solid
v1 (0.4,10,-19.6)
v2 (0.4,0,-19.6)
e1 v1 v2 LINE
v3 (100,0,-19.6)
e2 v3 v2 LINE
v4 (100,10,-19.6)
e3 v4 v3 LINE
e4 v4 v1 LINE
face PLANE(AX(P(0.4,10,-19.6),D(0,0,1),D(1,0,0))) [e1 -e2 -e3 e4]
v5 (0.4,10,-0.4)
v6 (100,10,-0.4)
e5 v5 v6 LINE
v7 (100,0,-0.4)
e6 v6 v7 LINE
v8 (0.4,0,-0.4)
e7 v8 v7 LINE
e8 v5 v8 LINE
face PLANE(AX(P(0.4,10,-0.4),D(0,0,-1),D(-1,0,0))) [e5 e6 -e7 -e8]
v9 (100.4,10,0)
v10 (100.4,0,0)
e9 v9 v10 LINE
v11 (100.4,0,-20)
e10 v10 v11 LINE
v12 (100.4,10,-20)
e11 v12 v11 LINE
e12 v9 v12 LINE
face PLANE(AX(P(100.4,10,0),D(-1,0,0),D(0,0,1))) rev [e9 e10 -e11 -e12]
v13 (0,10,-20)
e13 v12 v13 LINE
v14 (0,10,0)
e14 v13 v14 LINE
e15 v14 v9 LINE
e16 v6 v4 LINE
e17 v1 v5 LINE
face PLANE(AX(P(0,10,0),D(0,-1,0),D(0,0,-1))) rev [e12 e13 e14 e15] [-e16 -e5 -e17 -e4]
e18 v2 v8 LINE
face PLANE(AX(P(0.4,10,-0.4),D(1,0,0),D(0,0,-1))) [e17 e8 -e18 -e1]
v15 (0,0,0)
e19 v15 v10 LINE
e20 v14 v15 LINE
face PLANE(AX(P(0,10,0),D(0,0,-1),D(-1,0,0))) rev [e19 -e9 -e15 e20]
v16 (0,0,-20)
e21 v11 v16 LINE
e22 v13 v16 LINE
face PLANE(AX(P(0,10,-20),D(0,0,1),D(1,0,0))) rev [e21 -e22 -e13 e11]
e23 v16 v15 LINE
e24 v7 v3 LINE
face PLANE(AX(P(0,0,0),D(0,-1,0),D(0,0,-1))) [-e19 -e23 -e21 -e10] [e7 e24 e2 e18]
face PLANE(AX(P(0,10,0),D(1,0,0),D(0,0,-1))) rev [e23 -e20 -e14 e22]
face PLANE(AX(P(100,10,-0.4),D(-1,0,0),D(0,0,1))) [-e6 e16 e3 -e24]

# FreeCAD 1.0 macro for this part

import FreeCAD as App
import Part
import Sketcher

doc = App.newDocument("Part")
params = doc.addObject("Spreadsheet::Sheet", "Params")
for row, (alias, value) in enumerate([
    ("sketch1_height", "20 mm"),
    ("sketch1_width", "100.4 mm"),
    ("sketch1_width2", "99.6 mm"),
    ("sketch1_height2", "19.2 mm"),
    ("pad1_length", "10 mm"),
], start=1):
    params.set(f"A{row}", alias)
    params.set(f"B{row}", "=" + value)
    params.setAlias(f"B{row}", alias)

body = doc.addObject("PartDesign::Body", "Body")

# Sketch on XZ plane
sketch1 = body.newObject("Sketcher::SketchObject", "Sketch")
sketch1.AttachmentSupport = (doc.getObject("XZ_Plane"), [""])
sketch1.MapMode = "FlatFace"
sketch1.addGeometry(Part.LineSegment(App.Vector(0, -20, 0), App.Vector(0, 0, 0)), False)
sketch1.addGeometry(Part.LineSegment(App.Vector(0, 0, 0), App.Vector(100, 0, 0)), False)
sketch1.addGeometry(Part.LineSegment(App.Vector(100, 0, 0), App.Vector(100, -20, 0)), False)
sketch1.addGeometry(Part.LineSegment(App.Vector(100, -20, 0), App.Vector(0, -20, 0)), False)
sketch1.addGeometry(Part.LineSegment(App.Vector(100, 0, 0), App.Vector(0, 0, 0)), False)
sketch1.addGeometry(Part.LineSegment(App.Vector(0, 0, 0), App.Vector(0, -20, 0)), False)
sketch1.addGeometry(Part.LineSegment(App.Vector(0, -20, 0), App.Vector(100, -20, 0)), False)
sketch1.addGeometry(Part.LineSegment(App.Vector(100, -20, 0), App.Vector(100, 0, 0)), False)
sketch1.addConstraint(Sketcher.Constraint("Coincident", 0, 2, 1, 1))
sketch1.addConstraint(Sketcher.Constraint("Coincident", 1, 2, 2, 1))
sketch1.addConstraint(Sketcher.Constraint("Coincident", 2, 2, 3, 1))
sketch1.addConstraint(Sketcher.Constraint("Coincident", 3, 2, 0, 1))
sketch1.addConstraint(Sketcher.Constraint("Coincident", 4, 2, 5, 1))
sketch1.addConstraint(Sketcher.Constraint("Coincident", 5, 2, 6, 1))
sketch1.addConstraint(Sketcher.Constraint("Coincident", 6, 2, 7, 1))
sketch1.addConstraint(Sketcher.Constraint("Coincident", 7, 2, 4, 1))
sketch1.addConstraint(Sketcher.Constraint("Vertical", 0))
sketch1.addConstraint(Sketcher.Constraint("Horizontal", 1))
sketch1.addConstraint(Sketcher.Constraint("Vertical", 2))
sketch1.addConstraint(Sketcher.Constraint("Horizontal", 3))
sketch1.addConstraint(Sketcher.Constraint("Horizontal", 4))
sketch1.addConstraint(Sketcher.Constraint("Vertical", 5))
sketch1.addConstraint(Sketcher.Constraint("Horizontal", 6))
sketch1.addConstraint(Sketcher.Constraint("Vertical", 7))
sketch1.addConstraint(Sketcher.Constraint("Coincident", 0, 2, -1, 1))
sketch1.addConstraint(Sketcher.Constraint("DistanceY", 0, 1, 0, 2, 20.0))
sketch1.addConstraint(Sketcher.Constraint("DistanceX", 1, 1, 1, 2, 100.4))
sketch1.addConstraint(Sketcher.Constraint("DistanceX", 4, 2, 4, 1, 99.6))
sketch1.addConstraint(Sketcher.Constraint("DistanceY", 5, 2, 5, 1, 19.2))
sketch1.addConstraint(Sketcher.Constraint("DistanceX", -1, 1, 6, 2, 100.0))
sketch1.addConstraint(Sketcher.Constraint("DistanceY", 4, 2, -1, 1, 0.4))
sketch1.setExpression("Constraints[17]", "Params.sketch1_height")
sketch1.setExpression("Constraints[18]", "Params.sketch1_width")
sketch1.setExpression("Constraints[19]", "Params.sketch1_width2")
sketch1.setExpression("Constraints[20]", "Params.sketch1_height2")
pad1 = body.newObject("PartDesign::Pad", "Pad")
pad1.Profile = sketch1
pad1.setExpression("Length", "Params.pad1_length")
pad1.Reversed = True

doc.recompute()
